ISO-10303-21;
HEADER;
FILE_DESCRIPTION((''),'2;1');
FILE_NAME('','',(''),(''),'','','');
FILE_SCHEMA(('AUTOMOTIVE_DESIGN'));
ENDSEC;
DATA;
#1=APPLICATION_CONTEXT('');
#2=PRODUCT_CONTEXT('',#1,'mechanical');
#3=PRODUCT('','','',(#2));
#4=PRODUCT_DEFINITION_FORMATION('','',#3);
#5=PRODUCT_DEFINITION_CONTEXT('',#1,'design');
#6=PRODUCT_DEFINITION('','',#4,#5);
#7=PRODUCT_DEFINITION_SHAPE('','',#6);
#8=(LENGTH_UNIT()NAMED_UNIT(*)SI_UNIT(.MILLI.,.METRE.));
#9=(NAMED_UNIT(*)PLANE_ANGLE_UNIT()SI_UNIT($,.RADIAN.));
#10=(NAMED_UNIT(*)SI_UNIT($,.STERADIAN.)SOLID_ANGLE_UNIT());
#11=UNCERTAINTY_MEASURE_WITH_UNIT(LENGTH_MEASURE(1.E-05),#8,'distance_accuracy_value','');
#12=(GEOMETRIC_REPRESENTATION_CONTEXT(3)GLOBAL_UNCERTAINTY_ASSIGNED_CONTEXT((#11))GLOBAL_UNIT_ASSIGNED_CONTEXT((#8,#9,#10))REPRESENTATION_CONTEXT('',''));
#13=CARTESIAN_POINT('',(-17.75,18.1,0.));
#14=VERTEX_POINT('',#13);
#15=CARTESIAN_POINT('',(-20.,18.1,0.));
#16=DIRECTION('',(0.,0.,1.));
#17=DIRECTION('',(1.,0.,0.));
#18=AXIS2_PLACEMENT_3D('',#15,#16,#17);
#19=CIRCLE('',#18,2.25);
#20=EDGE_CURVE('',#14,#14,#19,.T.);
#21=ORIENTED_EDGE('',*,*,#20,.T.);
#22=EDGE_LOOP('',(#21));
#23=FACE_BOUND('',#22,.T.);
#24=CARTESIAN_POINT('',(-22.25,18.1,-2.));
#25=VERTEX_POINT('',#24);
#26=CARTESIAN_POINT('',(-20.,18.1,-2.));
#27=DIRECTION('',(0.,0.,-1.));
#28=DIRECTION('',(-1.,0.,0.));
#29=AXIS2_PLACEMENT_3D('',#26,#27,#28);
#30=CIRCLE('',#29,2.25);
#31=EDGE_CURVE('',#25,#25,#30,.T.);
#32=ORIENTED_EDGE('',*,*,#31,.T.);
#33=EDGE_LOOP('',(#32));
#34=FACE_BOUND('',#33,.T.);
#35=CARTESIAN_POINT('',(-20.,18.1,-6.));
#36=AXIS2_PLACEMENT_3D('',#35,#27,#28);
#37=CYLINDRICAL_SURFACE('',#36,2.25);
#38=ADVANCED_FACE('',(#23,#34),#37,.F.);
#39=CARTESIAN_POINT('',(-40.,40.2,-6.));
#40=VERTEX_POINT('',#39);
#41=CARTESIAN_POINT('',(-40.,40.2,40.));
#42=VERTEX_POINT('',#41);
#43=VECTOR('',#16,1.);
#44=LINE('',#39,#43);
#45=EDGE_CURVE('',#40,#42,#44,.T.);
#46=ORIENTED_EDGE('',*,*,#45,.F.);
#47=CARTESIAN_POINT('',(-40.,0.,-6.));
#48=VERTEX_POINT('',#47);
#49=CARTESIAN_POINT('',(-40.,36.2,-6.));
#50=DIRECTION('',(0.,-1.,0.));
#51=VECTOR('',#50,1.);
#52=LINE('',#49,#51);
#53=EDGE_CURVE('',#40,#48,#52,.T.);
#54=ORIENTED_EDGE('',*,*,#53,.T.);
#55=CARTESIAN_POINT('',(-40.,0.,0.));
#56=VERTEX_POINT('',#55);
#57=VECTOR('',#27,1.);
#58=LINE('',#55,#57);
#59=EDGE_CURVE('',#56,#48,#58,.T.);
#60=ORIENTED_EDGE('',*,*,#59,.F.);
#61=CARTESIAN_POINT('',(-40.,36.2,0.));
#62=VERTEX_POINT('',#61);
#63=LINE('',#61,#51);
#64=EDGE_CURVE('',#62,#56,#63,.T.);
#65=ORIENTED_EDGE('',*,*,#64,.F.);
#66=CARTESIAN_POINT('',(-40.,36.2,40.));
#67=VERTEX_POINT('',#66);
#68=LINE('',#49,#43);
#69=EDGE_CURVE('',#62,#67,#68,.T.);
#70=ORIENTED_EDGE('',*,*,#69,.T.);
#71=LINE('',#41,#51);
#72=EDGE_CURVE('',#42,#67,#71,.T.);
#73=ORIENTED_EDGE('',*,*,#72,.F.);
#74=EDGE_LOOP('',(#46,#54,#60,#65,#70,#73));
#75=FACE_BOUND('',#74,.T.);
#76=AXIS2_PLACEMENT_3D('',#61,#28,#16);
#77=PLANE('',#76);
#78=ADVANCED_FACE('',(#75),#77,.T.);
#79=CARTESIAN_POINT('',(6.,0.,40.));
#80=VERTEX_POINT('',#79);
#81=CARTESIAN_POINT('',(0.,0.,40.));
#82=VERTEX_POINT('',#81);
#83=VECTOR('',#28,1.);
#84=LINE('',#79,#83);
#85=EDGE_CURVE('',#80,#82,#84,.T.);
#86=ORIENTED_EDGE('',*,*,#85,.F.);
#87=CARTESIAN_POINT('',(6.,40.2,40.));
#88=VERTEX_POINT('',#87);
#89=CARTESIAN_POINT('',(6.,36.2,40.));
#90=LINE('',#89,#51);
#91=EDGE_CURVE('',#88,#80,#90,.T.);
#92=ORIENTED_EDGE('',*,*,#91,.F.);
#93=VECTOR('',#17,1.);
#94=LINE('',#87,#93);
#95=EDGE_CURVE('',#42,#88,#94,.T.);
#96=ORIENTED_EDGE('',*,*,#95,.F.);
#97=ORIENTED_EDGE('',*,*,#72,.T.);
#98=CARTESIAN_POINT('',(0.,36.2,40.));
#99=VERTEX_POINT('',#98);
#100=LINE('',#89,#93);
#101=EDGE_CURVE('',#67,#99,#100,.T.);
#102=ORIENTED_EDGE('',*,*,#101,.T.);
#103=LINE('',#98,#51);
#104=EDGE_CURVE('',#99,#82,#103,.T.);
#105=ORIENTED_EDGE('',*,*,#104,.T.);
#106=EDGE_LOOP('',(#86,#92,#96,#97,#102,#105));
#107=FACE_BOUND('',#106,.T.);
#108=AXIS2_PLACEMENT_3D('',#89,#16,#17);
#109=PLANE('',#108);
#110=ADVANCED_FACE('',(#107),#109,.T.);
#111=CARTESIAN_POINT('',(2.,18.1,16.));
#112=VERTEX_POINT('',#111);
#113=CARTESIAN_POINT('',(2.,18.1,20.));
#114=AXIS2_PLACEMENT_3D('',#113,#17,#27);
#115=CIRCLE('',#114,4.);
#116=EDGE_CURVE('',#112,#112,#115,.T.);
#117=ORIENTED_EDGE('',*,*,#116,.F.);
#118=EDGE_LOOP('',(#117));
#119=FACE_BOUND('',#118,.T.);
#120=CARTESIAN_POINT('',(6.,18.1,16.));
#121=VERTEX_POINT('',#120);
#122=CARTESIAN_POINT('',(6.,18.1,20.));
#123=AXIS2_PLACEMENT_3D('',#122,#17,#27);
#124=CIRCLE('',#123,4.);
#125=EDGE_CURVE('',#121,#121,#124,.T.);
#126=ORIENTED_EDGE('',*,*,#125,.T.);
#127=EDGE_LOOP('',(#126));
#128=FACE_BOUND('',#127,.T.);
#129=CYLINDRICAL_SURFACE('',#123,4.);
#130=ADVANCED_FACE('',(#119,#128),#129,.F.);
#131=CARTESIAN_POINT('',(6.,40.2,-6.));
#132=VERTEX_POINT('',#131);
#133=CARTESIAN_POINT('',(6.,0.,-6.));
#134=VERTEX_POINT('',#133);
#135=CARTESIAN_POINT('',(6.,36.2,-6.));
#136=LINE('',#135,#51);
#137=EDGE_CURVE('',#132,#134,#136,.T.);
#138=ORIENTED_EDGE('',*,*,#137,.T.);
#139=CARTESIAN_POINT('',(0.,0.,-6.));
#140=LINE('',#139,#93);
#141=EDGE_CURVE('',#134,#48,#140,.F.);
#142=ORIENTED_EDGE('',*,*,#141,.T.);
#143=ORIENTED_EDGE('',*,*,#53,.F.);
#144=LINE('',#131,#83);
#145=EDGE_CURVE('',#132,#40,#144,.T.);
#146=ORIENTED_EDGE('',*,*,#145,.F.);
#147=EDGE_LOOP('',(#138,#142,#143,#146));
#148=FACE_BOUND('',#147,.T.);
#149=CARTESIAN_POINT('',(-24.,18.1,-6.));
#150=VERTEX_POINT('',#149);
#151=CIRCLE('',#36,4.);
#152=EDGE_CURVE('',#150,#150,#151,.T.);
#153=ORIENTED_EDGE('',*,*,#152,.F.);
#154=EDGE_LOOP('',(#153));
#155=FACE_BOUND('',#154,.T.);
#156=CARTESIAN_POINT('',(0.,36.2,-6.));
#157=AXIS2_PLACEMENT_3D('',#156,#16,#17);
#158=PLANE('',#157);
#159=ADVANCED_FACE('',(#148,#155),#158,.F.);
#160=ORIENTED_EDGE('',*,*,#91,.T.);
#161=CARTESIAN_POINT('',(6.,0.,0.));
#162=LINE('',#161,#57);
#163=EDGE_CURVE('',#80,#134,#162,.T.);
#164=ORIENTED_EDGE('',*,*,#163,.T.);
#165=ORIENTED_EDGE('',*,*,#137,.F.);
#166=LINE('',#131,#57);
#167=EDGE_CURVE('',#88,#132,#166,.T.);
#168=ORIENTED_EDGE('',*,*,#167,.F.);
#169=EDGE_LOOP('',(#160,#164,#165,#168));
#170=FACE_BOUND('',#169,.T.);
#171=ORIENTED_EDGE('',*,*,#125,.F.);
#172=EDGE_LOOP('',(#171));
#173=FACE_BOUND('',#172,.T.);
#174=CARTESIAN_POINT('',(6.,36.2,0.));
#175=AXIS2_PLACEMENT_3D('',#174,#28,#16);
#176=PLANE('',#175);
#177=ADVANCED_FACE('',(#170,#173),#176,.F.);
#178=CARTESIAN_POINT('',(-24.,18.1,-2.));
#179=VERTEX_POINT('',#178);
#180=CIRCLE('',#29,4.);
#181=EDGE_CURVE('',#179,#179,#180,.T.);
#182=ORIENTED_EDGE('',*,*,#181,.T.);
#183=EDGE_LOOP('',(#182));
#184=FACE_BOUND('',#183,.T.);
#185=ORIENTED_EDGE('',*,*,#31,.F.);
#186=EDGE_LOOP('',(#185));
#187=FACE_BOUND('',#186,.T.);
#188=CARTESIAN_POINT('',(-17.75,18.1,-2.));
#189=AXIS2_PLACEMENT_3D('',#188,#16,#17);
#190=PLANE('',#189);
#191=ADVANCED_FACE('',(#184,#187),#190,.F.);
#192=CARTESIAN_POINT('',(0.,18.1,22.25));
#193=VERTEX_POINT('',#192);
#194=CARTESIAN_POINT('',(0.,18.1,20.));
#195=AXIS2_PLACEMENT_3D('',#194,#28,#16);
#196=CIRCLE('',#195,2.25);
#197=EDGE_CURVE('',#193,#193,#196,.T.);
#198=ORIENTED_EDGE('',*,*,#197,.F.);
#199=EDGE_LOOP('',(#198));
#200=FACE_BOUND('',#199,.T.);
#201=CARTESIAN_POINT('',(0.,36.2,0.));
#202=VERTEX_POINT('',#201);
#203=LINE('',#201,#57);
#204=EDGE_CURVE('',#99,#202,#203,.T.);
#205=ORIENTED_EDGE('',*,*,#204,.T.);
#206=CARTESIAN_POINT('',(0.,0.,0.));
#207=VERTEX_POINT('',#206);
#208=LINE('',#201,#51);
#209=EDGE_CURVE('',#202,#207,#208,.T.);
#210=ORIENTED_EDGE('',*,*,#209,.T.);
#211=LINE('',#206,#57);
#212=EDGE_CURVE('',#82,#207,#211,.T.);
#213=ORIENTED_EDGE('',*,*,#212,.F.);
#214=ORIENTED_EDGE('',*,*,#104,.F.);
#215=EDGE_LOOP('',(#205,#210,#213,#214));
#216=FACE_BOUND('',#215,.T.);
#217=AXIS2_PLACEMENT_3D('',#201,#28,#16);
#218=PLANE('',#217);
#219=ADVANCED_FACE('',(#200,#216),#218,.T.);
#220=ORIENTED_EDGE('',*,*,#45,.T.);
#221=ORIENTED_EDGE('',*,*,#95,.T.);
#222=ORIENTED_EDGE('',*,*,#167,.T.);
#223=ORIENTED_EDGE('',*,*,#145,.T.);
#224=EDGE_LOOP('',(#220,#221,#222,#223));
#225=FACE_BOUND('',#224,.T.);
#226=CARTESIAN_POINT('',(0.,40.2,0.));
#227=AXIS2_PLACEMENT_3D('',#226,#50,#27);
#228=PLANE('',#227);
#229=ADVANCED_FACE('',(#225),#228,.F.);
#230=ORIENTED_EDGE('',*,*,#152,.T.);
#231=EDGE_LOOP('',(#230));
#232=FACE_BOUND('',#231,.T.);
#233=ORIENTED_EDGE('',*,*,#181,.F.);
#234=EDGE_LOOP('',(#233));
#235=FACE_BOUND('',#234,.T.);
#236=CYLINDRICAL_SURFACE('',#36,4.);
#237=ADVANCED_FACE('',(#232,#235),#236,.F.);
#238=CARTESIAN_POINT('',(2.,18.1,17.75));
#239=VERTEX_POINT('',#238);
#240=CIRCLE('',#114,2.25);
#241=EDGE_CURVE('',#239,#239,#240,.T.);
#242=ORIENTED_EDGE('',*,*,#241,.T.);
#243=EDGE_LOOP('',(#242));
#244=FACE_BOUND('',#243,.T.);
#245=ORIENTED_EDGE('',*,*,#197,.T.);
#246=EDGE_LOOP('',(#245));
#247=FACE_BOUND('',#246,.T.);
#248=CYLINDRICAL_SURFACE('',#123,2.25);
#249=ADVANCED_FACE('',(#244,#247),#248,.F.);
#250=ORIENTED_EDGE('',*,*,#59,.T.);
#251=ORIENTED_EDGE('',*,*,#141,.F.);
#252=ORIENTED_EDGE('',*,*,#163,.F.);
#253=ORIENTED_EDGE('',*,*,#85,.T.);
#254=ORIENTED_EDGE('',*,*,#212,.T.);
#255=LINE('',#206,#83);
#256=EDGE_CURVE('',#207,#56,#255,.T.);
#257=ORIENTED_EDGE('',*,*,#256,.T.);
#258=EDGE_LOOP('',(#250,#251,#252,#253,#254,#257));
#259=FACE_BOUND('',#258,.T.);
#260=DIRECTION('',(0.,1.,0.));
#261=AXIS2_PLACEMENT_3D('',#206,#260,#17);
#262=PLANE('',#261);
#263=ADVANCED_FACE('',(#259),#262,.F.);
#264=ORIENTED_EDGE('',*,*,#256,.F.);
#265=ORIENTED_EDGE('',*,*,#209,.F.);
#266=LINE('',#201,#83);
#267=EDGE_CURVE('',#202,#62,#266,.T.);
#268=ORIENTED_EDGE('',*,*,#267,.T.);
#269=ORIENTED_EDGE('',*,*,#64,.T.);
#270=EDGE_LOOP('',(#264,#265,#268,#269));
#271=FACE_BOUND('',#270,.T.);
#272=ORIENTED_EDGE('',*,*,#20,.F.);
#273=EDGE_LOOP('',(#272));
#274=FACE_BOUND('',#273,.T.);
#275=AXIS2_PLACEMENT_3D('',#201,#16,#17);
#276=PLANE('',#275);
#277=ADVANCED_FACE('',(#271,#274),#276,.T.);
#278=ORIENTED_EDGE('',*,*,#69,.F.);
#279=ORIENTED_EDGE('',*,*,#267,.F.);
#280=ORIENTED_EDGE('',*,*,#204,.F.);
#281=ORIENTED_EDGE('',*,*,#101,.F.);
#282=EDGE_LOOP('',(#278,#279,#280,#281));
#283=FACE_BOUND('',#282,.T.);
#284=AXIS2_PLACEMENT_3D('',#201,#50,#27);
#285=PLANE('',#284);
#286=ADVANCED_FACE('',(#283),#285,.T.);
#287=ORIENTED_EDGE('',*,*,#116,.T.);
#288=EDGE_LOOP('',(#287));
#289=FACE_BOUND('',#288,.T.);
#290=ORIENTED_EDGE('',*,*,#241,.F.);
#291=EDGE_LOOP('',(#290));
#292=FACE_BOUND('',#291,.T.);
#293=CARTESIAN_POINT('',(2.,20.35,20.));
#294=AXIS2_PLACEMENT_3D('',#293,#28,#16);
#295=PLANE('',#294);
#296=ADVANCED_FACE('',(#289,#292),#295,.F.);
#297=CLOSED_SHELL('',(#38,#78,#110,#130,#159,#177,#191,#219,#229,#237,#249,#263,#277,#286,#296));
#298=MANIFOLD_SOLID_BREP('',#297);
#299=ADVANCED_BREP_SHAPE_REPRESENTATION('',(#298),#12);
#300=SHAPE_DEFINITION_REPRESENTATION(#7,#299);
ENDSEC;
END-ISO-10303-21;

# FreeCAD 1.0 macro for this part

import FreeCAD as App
import Part
import Sketcher


def add_polygon(sketch, points):
    """Adds a closed chain of lines whose ends are joined by coincident constraints."""
    first, n = sketch.GeometryCount, len(points)
    for a, b in zip(points, points[1:] + points[:1]):
        sketch.addGeometry(Part.LineSegment(App.Vector(*a, 0), App.Vector(*b, 0)), False)
    for i in range(n):
        sketch.addConstraint(Sketcher.Constraint("Coincident", first + i, 2, first + (i + 1) % n, 1))

doc = App.newDocument("Part")
body = doc.addObject("PartDesign::Body", "Body")

# Sketch on XZ plane
sketch1 = body.newObject("Sketcher::SketchObject", "Sketch")
sketch1.AttachmentSupport = (doc.getObject("XZ_Plane"), [""])
sketch1.MapMode = "FlatFace"
add_polygon(sketch1, [(-40, 0), (0, 0), (0, 40), (6, 40), (6, -6), (-40, -6)])  # lines 0-5
sketch1.addConstraint(Sketcher.Constraint("Horizontal", 0))
sketch1.addConstraint(Sketcher.Constraint("Vertical", 1))
sketch1.addConstraint(Sketcher.Constraint("Horizontal", 2))
sketch1.addConstraint(Sketcher.Constraint("Vertical", 3))
sketch1.addConstraint(Sketcher.Constraint("Horizontal", 4))
sketch1.addConstraint(Sketcher.Constraint("Vertical", 5))
sketch1.addConstraint(Sketcher.Constraint("Coincident", 0, 2, -1, 1))
sketch1.addConstraint(Sketcher.Constraint("Equal", 0, 1))
sketch1.addConstraint(Sketcher.Constraint("Equal", 4, 3))
sketch1.addConstraint(Sketcher.Constraint("DistanceX", 0, 1, 0, 2, 40.0))
sketch1.addConstraint(Sketcher.Constraint("DistanceX", 2, 1, 2, 2, 6.0))
pad1 = body.newObject("PartDesign::Pad", "Pad")
pad1.Profile = sketch1
pad1.Length = 36.2
pad1.Reversed = True

# Sketch on XZ plane
sketch2 = body.newObject("Sketcher::SketchObject", "Sketch001")
sketch2.AttachmentSupport = (doc.getObject("XZ_Plane"), [""])
sketch2.MapMode = "FlatFace"
sketch2.AttachmentOffset = App.Placement(App.Vector(0, 0, -36.2), App.Rotation())
add_polygon(sketch2, [(-40, -6), (-40, 40), (6, 40), (6, -6)])  # lines 0-3
sketch2.addConstraint(Sketcher.Constraint("Vertical", 0))
sketch2.addConstraint(Sketcher.Constraint("Horizontal", 1))
sketch2.addConstraint(Sketcher.Constraint("Vertical", 2))
sketch2.addConstraint(Sketcher.Constraint("Horizontal", 3))
sketch2.addConstraint(Sketcher.Constraint("Equal", 3, 0))
sketch2.addConstraint(Sketcher.Constraint("DistanceX", 1, 1, 1, 2, 46.0))
sketch2.addConstraint(Sketcher.Constraint("DistanceX", 0, 2, -1, 1, 40.0))
sketch2.addConstraint(Sketcher.Constraint("DistanceY", -1, 1, 0, 2, 40.0))
pad2 = body.newObject("PartDesign::Pad", "Pad001")
pad2.Profile = sketch2
pad2.Length = 4
pad2.Reversed = True

# Sketch on YZ plane
sketch3 = body.newObject("Sketcher::SketchObject", "Sketch002")
sketch3.AttachmentSupport = (doc.getObject("YZ_Plane"), [""])
sketch3.MapMode = "FlatFace"
sketch3.AttachmentOffset = App.Placement(App.Vector(0, 0, 6), App.Rotation())
sketch3.addGeometry(Part.Circle(App.Vector(18.1, 20, 0), App.Vector(0, 0, 1), 2.2), False)
sketch3.addConstraint(Sketcher.Constraint("Diameter", 0, 4.5))
sketch3.addConstraint(Sketcher.Constraint("DistanceY", -1, 1, 0, 3, 20.0))
sketch3.addConstraint(Sketcher.Constraint("DistanceX", -1, 1, 0, 3, 18.1))
doc.recompute()
hole = body.newObject("PartDesign::Hole", "Hole")
hole.Profile = sketch3
hole.ThreadType = "None"
hole.Diameter = 4.5
hole.DepthType = "Dimension"
hole.Depth = 6
hole.DrillPoint = "Flat"
hole.HoleCutType = "Counterbore"
hole.HoleCutDiameter = 8
hole.HoleCutDepth = 4

# Sketch on XY plane
sketch4 = body.newObject("Sketcher::SketchObject", "Sketch003")
sketch4.AttachmentSupport = (doc.getObject("XY_Plane"), [""])
sketch4.MapMode = "FlatFace"
sketch4.AttachmentOffset = App.Placement(App.Vector(0, 0, -6), App.Rotation())
sketch4.addGeometry(Part.Circle(App.Vector(-20, 18.1, 0), App.Vector(0, 0, 1), 2.2), False)
sketch4.addConstraint(Sketcher.Constraint("Diameter", 0, 4.5))
sketch4.addConstraint(Sketcher.Constraint("DistanceX", 0, 3, -1, 1, 20.0))
sketch4.addConstraint(Sketcher.Constraint("DistanceY", -1, 1, 0, 3, 18.1))
doc.recompute()
hole2 = body.newObject("PartDesign::Hole", "Hole001")
hole2.Profile = sketch4
hole2.ThreadType = "None"
hole2.Diameter = 4.5
hole2.DepthType = "Dimension"
hole2.Depth = 6
hole2.DrillPoint = "Flat"
hole2.HoleCutType = "Counterbore"
hole2.HoleCutDiameter = 8
hole2.HoleCutDepth = 4
hole2.Reversed = True

doc.recompute()
